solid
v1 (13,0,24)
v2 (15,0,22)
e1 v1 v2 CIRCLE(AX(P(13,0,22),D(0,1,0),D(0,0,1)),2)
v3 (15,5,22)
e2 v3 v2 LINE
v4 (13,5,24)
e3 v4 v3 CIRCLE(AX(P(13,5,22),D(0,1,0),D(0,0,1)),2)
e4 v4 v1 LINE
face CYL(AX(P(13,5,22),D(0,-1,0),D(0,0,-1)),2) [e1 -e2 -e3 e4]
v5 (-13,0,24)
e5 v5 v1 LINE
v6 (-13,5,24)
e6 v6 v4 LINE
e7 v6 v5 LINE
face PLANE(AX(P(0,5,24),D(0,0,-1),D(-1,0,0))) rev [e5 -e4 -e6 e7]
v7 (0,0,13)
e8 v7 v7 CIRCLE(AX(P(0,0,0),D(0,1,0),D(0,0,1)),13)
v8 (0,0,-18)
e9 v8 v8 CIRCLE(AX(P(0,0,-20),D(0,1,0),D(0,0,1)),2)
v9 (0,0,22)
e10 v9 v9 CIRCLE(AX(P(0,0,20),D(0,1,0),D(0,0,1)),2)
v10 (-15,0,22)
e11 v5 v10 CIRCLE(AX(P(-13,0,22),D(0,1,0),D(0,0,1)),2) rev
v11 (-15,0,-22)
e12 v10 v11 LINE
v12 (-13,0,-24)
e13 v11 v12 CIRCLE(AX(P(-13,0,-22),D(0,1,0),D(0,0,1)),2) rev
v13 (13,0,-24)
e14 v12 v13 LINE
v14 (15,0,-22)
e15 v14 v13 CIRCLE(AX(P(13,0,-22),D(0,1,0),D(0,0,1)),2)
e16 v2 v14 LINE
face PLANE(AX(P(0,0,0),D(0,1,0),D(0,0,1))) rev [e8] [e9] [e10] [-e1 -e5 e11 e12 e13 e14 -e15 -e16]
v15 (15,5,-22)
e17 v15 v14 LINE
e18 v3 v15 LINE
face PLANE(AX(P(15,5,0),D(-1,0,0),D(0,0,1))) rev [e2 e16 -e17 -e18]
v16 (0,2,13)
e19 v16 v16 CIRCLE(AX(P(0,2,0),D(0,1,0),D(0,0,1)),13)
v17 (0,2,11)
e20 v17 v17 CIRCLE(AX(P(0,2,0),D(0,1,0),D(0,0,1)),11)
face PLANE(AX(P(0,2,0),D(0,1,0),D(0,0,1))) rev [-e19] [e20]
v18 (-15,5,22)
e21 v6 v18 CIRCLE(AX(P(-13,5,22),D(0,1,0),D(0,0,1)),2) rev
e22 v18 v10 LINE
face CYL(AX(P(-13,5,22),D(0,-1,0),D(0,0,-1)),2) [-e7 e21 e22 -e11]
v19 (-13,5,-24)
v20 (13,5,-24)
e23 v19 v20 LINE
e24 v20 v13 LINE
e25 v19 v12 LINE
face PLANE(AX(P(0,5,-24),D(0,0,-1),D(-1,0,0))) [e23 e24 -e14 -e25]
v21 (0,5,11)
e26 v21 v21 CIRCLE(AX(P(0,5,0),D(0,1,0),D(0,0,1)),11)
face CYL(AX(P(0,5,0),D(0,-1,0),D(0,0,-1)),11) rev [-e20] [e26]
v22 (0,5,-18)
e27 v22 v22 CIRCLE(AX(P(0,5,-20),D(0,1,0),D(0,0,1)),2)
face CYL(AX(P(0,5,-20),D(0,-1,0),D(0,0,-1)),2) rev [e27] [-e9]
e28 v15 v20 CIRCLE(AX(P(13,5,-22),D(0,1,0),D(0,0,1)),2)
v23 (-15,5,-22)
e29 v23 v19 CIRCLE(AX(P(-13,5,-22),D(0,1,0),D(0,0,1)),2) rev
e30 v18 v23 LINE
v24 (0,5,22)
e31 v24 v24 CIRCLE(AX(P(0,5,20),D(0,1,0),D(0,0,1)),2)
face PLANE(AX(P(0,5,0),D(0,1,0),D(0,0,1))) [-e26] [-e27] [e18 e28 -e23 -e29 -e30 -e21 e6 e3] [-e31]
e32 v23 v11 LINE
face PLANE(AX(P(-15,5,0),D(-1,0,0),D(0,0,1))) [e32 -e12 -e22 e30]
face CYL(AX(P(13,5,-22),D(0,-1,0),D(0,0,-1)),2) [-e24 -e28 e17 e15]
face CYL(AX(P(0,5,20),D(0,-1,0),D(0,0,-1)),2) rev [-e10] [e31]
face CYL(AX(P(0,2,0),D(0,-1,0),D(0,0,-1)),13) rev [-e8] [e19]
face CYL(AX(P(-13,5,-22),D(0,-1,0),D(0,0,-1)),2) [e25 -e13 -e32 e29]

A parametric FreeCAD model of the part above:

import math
import FreeCAD as App
import Part
import Sketcher
from FreeCAD import Vector

doc = App.newDocument("Part")
body = doc.addObject("PartDesign::Body", "Body")

# Sketch on XZ plane
sketch1 = body.newObject("Sketcher::SketchObject", "Sketch")
sketch1.AttachmentSupport = (doc.getObject("XZ_Plane"), [""])
sketch1.MapMode = "FlatFace"
sketch1.addGeometry(Part.ArcOfCircle(Part.Circle(Vector(-13, -22, 0), Vector(0, 0, 1), 2), math.radians(-180), math.radians(-90)), False)
sketch1.addGeometry(Part.LineSegment(Vector(-15, -22, 0), Vector(-15, 22, 0)), False)
sketch1.addGeometry(Part.ArcOfCircle(Part.Circle(Vector(-13, 22, 0), Vector(0, 0, 1), 2), math.radians(90), math.radians(180)), False)
sketch1.addGeometry(Part.LineSegment(Vector(-13, 24, 0), Vector(13, 24, 0)), False)
sketch1.addGeometry(Part.ArcOfCircle(Part.Circle(Vector(13, 22, 0), Vector(0, 0, 1), 2), math.radians(0), math.radians(90)), False)
sketch1.addGeometry(Part.LineSegment(Vector(15, 22, 0), Vector(15, -22, 0)), False)
sketch1.addGeometry(Part.ArcOfCircle(Part.Circle(Vector(13, -22, 0), Vector(0, 0, 1), 2), math.radians(-90), math.radians(0)), False)
sketch1.addGeometry(Part.LineSegment(Vector(13, -24, 0), Vector(-13, -24, 0)), False)
sketch1.addGeometry(Part.Circle(Vector(0, 20, 0), Vector(0, 0, 1), 2), False)
sketch1.addGeometry(Part.Circle(Vector(0, -20, 0), Vector(0, 0, 1), 2), False)
sketch1.addGeometry(Part.Circle(Vector(0, 0, 0), Vector(0, 0, 1), 11), False)
sketch1.addConstraint(Sketcher.Constraint("Tangent", 0, 1, 1, 1))
sketch1.addConstraint(Sketcher.Constraint("Tangent", 1, 2, 2, 2))
sketch1.addConstraint(Sketcher.Constraint("Tangent", 2, 1, 3, 1))
sketch1.addConstraint(Sketcher.Constraint("Tangent", 3, 2, 4, 2))
sketch1.addConstraint(Sketcher.Constraint("Tangent", 4, 1, 5, 1))
sketch1.addConstraint(Sketcher.Constraint("Tangent", 5, 2, 6, 2))
sketch1.addConstraint(Sketcher.Constraint("Tangent", 6, 1, 7, 1))
sketch1.addConstraint(Sketcher.Constraint("Tangent", 7, 2, 0, 2))
sketch1.addConstraint(Sketcher.Constraint("Vertical", 1))
sketch1.addConstraint(Sketcher.Constraint("Horizontal", 3))
sketch1.addConstraint(Sketcher.Constraint("Vertical", 5))
sketch1.addConstraint(Sketcher.Constraint("Horizontal", 7))
sketch1.addConstraint(Sketcher.Constraint("Coincident", 10, 3, -1, 1))
sketch1.addConstraint(Sketcher.Constraint("Equal", 0, 2))
sketch1.addConstraint(Sketcher.Constraint("Equal", 2, 4))
sketch1.addConstraint(Sketcher.Constraint("Equal", 4, 6))
sketch1.addConstraint(Sketcher.Constraint("Equal", 6, 8))
sketch1.addConstraint(Sketcher.Constraint("Equal", 8, 9))
sketch1.addConstraint(Sketcher.Constraint("Symmetric", 0, 3, 4, 3, -1, 1))
sketch1.addConstraint(Sketcher.Constraint("Symmetric", 8, 3, 9, 3, -1, 1))
sketch1.addConstraint(Sketcher.Constraint("PointOnObject", 8, 3, -2))
sketch1.addConstraint(Sketcher.Constraint("Diameter", 8, 4.0))
sketch1.addConstraint(Sketcher.Constraint("Diameter", 10, 22.0))
sketch1.addConstraint(Sketcher.Constraint("DistanceX", 3, 1, 3, 2, 26.0))
sketch1.addConstraint(Sketcher.Constraint("DistanceY", 1, 1, 1, 2, 44.0))
sketch1.addConstraint(Sketcher.Constraint("DistanceY", -1, 1, 8, 3, 20.0))
pad1 = body.newObject("PartDesign::Pad", "Pad")
pad1.Profile = sketch1
pad1.Length = 5
pad1.Reversed = True

# Sketch on XZ plane
sketch2 = body.newObject("Sketcher::SketchObject", "Sketch001")
sketch2.AttachmentSupport = (doc.getObject("XZ_Plane"), [""])
sketch2.MapMode = "FlatFace"
sketch2.addGeometry(Part.Circle(Vector(0, 0, 0), Vector(0, 0, 1), 13), False)
sketch2.addGeometry(Part.Circle(Vector(0, 0, 0), Vector(0, 0, 1), 11), False)
sketch2.addConstraint(Sketcher.Constraint("Coincident", 0, 3, -1, 1))
sketch2.addConstraint(Sketcher.Constraint("Coincident", 1, 3, -1, 1))
sketch2.addConstraint(Sketcher.Constraint("Diameter", 0, 26.0))
sketch2.addConstraint(Sketcher.Constraint("Diameter", 1, 22.0))
pocket1 = body.newObject("PartDesign::Pocket", "Pocket")
pocket1.Profile = sketch2
pocket1.Length = 2

doc.recompute()
